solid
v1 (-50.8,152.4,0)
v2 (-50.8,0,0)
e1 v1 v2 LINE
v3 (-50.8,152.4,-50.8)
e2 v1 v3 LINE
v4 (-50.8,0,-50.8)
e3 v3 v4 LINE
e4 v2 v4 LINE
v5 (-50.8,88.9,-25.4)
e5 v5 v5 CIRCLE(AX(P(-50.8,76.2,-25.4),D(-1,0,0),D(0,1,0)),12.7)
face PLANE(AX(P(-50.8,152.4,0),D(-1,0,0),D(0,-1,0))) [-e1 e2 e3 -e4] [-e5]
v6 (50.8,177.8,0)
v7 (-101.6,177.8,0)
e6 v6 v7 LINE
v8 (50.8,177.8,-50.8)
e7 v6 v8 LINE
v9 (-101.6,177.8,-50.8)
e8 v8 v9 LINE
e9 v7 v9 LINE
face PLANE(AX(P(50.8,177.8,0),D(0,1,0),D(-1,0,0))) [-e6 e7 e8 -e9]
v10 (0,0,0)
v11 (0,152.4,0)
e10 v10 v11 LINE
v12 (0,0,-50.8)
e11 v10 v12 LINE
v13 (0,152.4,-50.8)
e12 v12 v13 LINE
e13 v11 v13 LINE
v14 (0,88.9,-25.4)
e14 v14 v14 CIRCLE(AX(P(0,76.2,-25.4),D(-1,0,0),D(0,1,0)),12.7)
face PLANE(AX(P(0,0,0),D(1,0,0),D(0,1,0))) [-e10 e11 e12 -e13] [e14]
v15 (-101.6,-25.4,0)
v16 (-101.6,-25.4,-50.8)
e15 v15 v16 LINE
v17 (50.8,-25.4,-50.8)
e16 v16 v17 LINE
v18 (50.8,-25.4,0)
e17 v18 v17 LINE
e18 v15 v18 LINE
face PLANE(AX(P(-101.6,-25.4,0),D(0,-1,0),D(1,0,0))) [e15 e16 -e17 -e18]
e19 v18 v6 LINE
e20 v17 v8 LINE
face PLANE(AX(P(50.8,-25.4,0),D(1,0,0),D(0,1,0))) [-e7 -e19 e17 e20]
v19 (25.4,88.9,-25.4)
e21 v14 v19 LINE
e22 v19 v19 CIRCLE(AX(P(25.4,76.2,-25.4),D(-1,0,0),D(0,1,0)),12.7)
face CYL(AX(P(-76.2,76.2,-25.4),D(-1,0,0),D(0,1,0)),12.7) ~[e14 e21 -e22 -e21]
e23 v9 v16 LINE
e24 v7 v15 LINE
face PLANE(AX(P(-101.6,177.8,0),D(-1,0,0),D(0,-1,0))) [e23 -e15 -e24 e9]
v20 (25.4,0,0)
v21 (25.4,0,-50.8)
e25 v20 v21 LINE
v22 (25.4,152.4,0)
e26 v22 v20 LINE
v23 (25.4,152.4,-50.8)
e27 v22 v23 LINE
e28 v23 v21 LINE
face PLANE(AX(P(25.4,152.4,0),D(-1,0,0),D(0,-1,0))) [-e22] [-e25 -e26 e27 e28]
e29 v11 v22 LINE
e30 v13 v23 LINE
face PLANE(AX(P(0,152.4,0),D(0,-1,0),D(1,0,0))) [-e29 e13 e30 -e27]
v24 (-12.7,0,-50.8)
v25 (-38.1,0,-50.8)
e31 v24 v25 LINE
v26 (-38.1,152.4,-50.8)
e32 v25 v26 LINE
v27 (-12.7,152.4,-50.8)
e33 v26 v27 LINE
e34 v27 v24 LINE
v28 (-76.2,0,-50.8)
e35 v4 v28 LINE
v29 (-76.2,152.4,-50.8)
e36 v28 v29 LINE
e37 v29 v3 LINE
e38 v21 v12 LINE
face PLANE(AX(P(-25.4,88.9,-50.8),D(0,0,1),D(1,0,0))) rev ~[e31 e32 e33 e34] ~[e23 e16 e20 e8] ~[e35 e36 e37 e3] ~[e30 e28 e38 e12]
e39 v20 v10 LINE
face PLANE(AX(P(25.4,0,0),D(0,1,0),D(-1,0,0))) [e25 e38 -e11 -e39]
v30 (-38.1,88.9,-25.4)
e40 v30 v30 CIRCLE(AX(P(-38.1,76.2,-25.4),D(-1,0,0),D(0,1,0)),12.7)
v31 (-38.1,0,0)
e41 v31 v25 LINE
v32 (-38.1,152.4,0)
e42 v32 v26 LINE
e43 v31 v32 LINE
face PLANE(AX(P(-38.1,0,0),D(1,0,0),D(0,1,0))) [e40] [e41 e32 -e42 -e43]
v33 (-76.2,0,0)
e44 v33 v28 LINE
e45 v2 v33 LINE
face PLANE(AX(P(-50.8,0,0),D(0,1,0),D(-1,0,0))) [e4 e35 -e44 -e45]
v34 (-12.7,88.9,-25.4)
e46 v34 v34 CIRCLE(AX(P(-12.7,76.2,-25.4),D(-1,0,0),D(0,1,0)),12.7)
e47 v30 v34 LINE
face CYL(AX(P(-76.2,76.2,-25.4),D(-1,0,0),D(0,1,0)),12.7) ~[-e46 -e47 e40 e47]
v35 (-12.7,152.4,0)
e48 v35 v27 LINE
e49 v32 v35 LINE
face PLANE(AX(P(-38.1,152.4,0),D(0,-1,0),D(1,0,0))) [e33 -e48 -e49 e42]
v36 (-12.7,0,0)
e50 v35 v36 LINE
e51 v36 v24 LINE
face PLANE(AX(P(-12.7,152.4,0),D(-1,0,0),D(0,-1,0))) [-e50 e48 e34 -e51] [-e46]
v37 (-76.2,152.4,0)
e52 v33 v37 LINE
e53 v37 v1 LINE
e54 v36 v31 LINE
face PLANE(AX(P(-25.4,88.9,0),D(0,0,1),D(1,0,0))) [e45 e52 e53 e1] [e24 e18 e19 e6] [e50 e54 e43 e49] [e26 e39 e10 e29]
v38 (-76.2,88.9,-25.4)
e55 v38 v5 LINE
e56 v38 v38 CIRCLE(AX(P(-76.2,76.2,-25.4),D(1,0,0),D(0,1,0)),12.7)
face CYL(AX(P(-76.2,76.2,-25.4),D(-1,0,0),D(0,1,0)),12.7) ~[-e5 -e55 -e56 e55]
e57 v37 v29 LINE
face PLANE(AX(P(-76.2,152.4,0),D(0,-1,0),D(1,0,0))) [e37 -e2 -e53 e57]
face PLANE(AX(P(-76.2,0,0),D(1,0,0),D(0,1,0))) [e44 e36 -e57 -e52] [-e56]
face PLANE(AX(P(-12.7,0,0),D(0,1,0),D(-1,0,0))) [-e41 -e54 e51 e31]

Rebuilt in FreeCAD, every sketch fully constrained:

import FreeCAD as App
import Part
import Sketcher

V = App.Vector
Q = App.Units.Quantity

doc = App.newDocument("Part")
params = doc.addObject("Spreadsheet::Sheet", "Params")
for row, (alias, value) in enumerate([
    ("sketch1_width", "6 in"),
    ("sketch1_width2", "1 in"),
    ("sketch1_height", "8 in"),
    ("pad1_length", "2 in"),
    ("sketch2_diameter", "1 in"),
    ("pad2_length", "5 in"),
], start=1):
    params.set(f"A{row}", alias)
    params.set(f"B{row}", "=" + value)
    params.setAlias(f"B{row}", alias)

body = doc.addObject("PartDesign::Body", "Body")

sketch1 = doc.addObject("Sketcher::SketchObject", "Sketch")
body.addObject(sketch1)
sketch1.AttachmentSupport = (doc.XY_Plane, [""])
sketch1.MapMode = "FlatFace"
sketch1.addGeometry(Part.LineSegment(V(50.8, 177.8, 0), V(-101.6, 177.8, 0)), False)
sketch1.addGeometry(Part.LineSegment(V(-101.6, 177.8, 0), V(-101.6, -25.4, 0)), False)
sketch1.addGeometry(Part.LineSegment(V(-101.6, -25.4, 0), V(50.8, -25.4, 0)), False)
sketch1.addGeometry(Part.LineSegment(V(50.8, -25.4, 0), V(50.8, 177.8, 0)), False)
sketch1.addGeometry(Part.LineSegment(V(-76.2, 0, 0), V(-76.2, 152.4, 0)), False)
sketch1.addGeometry(Part.LineSegment(V(-76.2, 152.4, 0), V(-50.8, 152.4, 0)), False)
sketch1.addGeometry(Part.LineSegment(V(-50.8, 152.4, 0), V(-50.8, 0, 0)), False)
sketch1.addGeometry(Part.LineSegment(V(-50.8, 0, 0), V(-76.2, 0, 0)), False)
sketch1.addGeometry(Part.LineSegment(V(-38.1, 0, 0), V(-38.1, 152.4, 0)), False)
sketch1.addGeometry(Part.LineSegment(V(-38.1, 152.4, 0), V(-12.7, 152.4, 0)), False)
sketch1.addGeometry(Part.LineSegment(V(-12.7, 152.4, 0), V(-12.7, 0, 0)), False)
sketch1.addGeometry(Part.LineSegment(V(-12.7, 0, 0), V(-38.1, 0, 0)), False)
sketch1.addGeometry(Part.LineSegment(V(0, 0, 0), V(0, 152.4, 0)), False)
sketch1.addGeometry(Part.LineSegment(V(0, 152.4, 0), V(25.4, 152.4, 0)), False)
sketch1.addGeometry(Part.LineSegment(V(25.4, 152.4, 0), V(25.4, 0, 0)), False)
sketch1.addGeometry(Part.LineSegment(V(25.4, 0, 0), V(0, 0, 0)), False)
sketch1.addConstraint(Sketcher.Constraint("Coincident", 0, 2, 1, 1))
sketch1.addConstraint(Sketcher.Constraint("Coincident", 1, 2, 2, 1))
sketch1.addConstraint(Sketcher.Constraint("Coincident", 2, 2, 3, 1))
sketch1.addConstraint(Sketcher.Constraint("Coincident", 3, 2, 0, 1))
sketch1.addConstraint(Sketcher.Constraint("Coincident", 4, 2, 5, 1))
sketch1.addConstraint(Sketcher.Constraint("Coincident", 5, 2, 6, 1))
sketch1.addConstraint(Sketcher.Constraint("Coincident", 6, 2, 7, 1))
sketch1.addConstraint(Sketcher.Constraint("Coincident", 7, 2, 4, 1))
sketch1.addConstraint(Sketcher.Constraint("Coincident", 8, 2, 9, 1))
sketch1.addConstraint(Sketcher.Constraint("Coincident", 9, 2, 10, 1))
sketch1.addConstraint(Sketcher.Constraint("Coincident", 10, 2, 11, 1))
sketch1.addConstraint(Sketcher.Constraint("Coincident", 11, 2, 8, 1))
sketch1.addConstraint(Sketcher.Constraint("Coincident", 12, 2, 13, 1))
sketch1.addConstraint(Sketcher.Constraint("Coincident", 13, 2, 14, 1))
sketch1.addConstraint(Sketcher.Constraint("Coincident", 14, 2, 15, 1))
sketch1.addConstraint(Sketcher.Constraint("Coincident", 15, 2, 12, 1))
sketch1.addConstraint(Sketcher.Constraint("Horizontal", 0))
sketch1.addConstraint(Sketcher.Constraint("Vertical", 1))
sketch1.addConstraint(Sketcher.Constraint("Horizontal", 2))
sketch1.addConstraint(Sketcher.Constraint("Vertical", 3))
sketch1.addConstraint(Sketcher.Constraint("Vertical", 4))
sketch1.addConstraint(Sketcher.Constraint("Horizontal", 5))
sketch1.addConstraint(Sketcher.Constraint("Vertical", 6))
sketch1.addConstraint(Sketcher.Constraint("Horizontal", 7))
sketch1.addConstraint(Sketcher.Constraint("Vertical", 8))
sketch1.addConstraint(Sketcher.Constraint("Horizontal", 9))
sketch1.addConstraint(Sketcher.Constraint("Vertical", 10))
sketch1.addConstraint(Sketcher.Constraint("Horizontal", 11))
sketch1.addConstraint(Sketcher.Constraint("Vertical", 12))
sketch1.addConstraint(Sketcher.Constraint("Horizontal", 13))
sketch1.addConstraint(Sketcher.Constraint("Vertical", 14))
sketch1.addConstraint(Sketcher.Constraint("Horizontal", 15))
sketch1.addConstraint(Sketcher.Constraint("Coincident", 15, 2, -1, 1))
sketch1.addConstraint(Sketcher.Constraint("PointOnObject", 6, 2, -1))
sketch1.addConstraint(Sketcher.Constraint("PointOnObject", 10, 2, -1))
sketch1.addConstraint(Sketcher.Constraint("Horizontal", 5, 2, 8, 2))
sketch1.addConstraint(Sketcher.Constraint("Horizontal", 9, 2, 12, 2))
sketch1.addConstraint(Sketcher.Constraint("Equal", 7, 9))
sketch1.addConstraint(Sketcher.Constraint("Equal", 11, 13))
sketch1.addConstraint(Sketcher.Constraint("Equal", 2, 4))
sketch1.addConstraint(Sketcher.Constraint("DistanceX", 0, 2, 0, 1, Q("6 in")))
sketch1.addConstraint(Sketcher.Constraint("DistanceX", 5, 1, 5, 2, Q("1 in")))
sketch1.addConstraint(Sketcher.Constraint("DistanceY", 1, 2, 1, 1, Q("8 in")))
sketch1.addConstraint(Sketcher.Constraint("DistanceX", 0, 2, -1, 1, Q("4 in")))
sketch1.addConstraint(Sketcher.Constraint("DistanceY", -1, 1, 0, 2, Q("7 in")))
sketch1.addConstraint(Sketcher.Constraint("DistanceX", 4, 2, -1, 1, Q("3 in")))
sketch1.addConstraint(Sketcher.Constraint("DistanceX", 8, 2, -1, 1, Q("1.5 in")))
sketch1.setExpression("Constraints[40]", "Params.sketch1_width")
sketch1.setExpression("Constraints[41]", "Params.sketch1_width2")
sketch1.setExpression("Constraints[42]", "Params.sketch1_height")
pad1 = doc.addObject("PartDesign::Pad", "Pad")
body.addObject(pad1)
pad1.Profile = sketch1
pad1.setExpression("Length", "Params.pad1_length")
pad1.Reversed = True

sketch2 = doc.addObject("Sketcher::SketchObject", "Sketch001")
body.addObject(sketch2)
sketch2.AttachmentSupport = (doc.YZ_Plane, [""])
sketch2.MapMode = "FlatFace"
sketch2.AttachmentOffset = App.Placement(V(0, 0, -3 * 25.4), App.Rotation())
sketch2.addGeometry(Part.Circle(V(76.2, -25.4, 0), V(0, 0, 1), 12.7), False)
sketch2.addConstraint(Sketcher.Constraint("Diameter", 0, Q("1 in")))
sketch2.addConstraint(Sketcher.Constraint("DistanceX", -1, 1, 0, 3, Q("3 in")))
sketch2.addConstraint(Sketcher.Constraint("DistanceY", 0, 3, -1, 1, Q("1 in")))
sketch2.setExpression("Constraints[0]", "Params.sketch2_diameter")
pad2 = doc.addObject("PartDesign::Pad", "Pad001")
body.addObject(pad2)
pad2.Profile = sketch2
pad2.setExpression("Length", "Params.pad2_length")

doc.recompute()
